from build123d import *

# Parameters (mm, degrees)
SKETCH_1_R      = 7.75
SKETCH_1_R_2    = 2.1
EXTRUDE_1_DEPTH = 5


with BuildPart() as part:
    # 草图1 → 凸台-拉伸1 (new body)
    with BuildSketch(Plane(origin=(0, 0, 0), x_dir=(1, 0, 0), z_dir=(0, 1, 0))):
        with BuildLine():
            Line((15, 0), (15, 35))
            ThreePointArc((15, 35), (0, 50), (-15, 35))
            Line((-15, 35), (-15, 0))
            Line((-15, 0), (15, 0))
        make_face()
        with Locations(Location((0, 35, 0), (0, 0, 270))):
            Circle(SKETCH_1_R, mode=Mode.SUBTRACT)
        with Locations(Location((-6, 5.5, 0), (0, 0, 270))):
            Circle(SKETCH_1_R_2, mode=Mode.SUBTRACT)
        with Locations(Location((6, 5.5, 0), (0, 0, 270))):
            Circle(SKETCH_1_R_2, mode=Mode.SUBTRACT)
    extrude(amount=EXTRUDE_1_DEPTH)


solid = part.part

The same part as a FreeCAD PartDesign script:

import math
import FreeCAD as App
import Part
import Sketcher
from FreeCAD import Vector

doc = App.newDocument("Part")
body = doc.addObject("PartDesign::Body", "Body")

# Sketch on XZ plane
sketch1 = doc.addObject("Sketcher::SketchObject", "Sketch")
body.addObject(sketch1)
sketch1.AttachmentSupport = (doc.XZ_Plane, [""])
sketch1.MapMode = "FlatFace"
sketch1.addGeometry([
    Part.LineSegment(Vector(15, 0, 0), Vector(15, -35, 0)),  # 0
    Part.ArcOfCircle(Part.Circle(Vector(0, -35, 0), Vector(0, 0, 1), 15), math.radians(180), math.radians(360)),  # 1
    Part.LineSegment(Vector(-15, -35, 0), Vector(-15, 0, 0)),  # 2
    Part.LineSegment(Vector(-15, 0, 0), Vector(15, 0, 0)),  # 3
    Part.Circle(Vector(-6, -5.5, 0), Vector(0, 0, 1), 2.1),  # 4
    Part.Circle(Vector(6, -5.5, 0), Vector(0, 0, 1), 2.1),  # 5
    Part.Circle(Vector(0, -35, 0), Vector(0, 0, 1), 7.8),  # 6
], False)
sketch1.addConstraint([
    Sketcher.Constraint("Tangent", 0, 2, 1, 2),
    Sketcher.Constraint("Tangent", 1, 1, 2, 1),
    Sketcher.Constraint("Coincident", 2, 2, 3, 1),
    Sketcher.Constraint("Coincident", 3, 2, 0, 1),
    Sketcher.Constraint("Vertical", 0),
    Sketcher.Constraint("Vertical", 2),
    Sketcher.Constraint("Horizontal", 3),
    Sketcher.Constraint("Coincident", 6, 3, 1, 3),
    Sketcher.Constraint("Equal", 4, 5),
    Sketcher.Constraint("Symmetric", 2, 2, 3, 2, -1, 1),
    Sketcher.Constraint("Symmetric", 4, 3, 5, 3, -2),
    Sketcher.Constraint("Radius", 1, 15.0),
    Sketcher.Constraint("Diameter", 4, 4.2),
    Sketcher.Constraint("Diameter", 6, 15.5),
    Sketcher.Constraint("DistanceY", 0, 2, 0, 1, 35.0),
    Sketcher.Constraint("DistanceX", 4, 3, -1, 1, 6.0),
    Sketcher.Constraint("DistanceY", 4, 3, -1, 1, 5.5),
])
pad1 = doc.addObject("PartDesign::Pad", "Pad")
body.addObject(pad1)
pad1.Profile = sketch1
pad1.Length = 5
pad1.Reversed = True

doc.recompute()
